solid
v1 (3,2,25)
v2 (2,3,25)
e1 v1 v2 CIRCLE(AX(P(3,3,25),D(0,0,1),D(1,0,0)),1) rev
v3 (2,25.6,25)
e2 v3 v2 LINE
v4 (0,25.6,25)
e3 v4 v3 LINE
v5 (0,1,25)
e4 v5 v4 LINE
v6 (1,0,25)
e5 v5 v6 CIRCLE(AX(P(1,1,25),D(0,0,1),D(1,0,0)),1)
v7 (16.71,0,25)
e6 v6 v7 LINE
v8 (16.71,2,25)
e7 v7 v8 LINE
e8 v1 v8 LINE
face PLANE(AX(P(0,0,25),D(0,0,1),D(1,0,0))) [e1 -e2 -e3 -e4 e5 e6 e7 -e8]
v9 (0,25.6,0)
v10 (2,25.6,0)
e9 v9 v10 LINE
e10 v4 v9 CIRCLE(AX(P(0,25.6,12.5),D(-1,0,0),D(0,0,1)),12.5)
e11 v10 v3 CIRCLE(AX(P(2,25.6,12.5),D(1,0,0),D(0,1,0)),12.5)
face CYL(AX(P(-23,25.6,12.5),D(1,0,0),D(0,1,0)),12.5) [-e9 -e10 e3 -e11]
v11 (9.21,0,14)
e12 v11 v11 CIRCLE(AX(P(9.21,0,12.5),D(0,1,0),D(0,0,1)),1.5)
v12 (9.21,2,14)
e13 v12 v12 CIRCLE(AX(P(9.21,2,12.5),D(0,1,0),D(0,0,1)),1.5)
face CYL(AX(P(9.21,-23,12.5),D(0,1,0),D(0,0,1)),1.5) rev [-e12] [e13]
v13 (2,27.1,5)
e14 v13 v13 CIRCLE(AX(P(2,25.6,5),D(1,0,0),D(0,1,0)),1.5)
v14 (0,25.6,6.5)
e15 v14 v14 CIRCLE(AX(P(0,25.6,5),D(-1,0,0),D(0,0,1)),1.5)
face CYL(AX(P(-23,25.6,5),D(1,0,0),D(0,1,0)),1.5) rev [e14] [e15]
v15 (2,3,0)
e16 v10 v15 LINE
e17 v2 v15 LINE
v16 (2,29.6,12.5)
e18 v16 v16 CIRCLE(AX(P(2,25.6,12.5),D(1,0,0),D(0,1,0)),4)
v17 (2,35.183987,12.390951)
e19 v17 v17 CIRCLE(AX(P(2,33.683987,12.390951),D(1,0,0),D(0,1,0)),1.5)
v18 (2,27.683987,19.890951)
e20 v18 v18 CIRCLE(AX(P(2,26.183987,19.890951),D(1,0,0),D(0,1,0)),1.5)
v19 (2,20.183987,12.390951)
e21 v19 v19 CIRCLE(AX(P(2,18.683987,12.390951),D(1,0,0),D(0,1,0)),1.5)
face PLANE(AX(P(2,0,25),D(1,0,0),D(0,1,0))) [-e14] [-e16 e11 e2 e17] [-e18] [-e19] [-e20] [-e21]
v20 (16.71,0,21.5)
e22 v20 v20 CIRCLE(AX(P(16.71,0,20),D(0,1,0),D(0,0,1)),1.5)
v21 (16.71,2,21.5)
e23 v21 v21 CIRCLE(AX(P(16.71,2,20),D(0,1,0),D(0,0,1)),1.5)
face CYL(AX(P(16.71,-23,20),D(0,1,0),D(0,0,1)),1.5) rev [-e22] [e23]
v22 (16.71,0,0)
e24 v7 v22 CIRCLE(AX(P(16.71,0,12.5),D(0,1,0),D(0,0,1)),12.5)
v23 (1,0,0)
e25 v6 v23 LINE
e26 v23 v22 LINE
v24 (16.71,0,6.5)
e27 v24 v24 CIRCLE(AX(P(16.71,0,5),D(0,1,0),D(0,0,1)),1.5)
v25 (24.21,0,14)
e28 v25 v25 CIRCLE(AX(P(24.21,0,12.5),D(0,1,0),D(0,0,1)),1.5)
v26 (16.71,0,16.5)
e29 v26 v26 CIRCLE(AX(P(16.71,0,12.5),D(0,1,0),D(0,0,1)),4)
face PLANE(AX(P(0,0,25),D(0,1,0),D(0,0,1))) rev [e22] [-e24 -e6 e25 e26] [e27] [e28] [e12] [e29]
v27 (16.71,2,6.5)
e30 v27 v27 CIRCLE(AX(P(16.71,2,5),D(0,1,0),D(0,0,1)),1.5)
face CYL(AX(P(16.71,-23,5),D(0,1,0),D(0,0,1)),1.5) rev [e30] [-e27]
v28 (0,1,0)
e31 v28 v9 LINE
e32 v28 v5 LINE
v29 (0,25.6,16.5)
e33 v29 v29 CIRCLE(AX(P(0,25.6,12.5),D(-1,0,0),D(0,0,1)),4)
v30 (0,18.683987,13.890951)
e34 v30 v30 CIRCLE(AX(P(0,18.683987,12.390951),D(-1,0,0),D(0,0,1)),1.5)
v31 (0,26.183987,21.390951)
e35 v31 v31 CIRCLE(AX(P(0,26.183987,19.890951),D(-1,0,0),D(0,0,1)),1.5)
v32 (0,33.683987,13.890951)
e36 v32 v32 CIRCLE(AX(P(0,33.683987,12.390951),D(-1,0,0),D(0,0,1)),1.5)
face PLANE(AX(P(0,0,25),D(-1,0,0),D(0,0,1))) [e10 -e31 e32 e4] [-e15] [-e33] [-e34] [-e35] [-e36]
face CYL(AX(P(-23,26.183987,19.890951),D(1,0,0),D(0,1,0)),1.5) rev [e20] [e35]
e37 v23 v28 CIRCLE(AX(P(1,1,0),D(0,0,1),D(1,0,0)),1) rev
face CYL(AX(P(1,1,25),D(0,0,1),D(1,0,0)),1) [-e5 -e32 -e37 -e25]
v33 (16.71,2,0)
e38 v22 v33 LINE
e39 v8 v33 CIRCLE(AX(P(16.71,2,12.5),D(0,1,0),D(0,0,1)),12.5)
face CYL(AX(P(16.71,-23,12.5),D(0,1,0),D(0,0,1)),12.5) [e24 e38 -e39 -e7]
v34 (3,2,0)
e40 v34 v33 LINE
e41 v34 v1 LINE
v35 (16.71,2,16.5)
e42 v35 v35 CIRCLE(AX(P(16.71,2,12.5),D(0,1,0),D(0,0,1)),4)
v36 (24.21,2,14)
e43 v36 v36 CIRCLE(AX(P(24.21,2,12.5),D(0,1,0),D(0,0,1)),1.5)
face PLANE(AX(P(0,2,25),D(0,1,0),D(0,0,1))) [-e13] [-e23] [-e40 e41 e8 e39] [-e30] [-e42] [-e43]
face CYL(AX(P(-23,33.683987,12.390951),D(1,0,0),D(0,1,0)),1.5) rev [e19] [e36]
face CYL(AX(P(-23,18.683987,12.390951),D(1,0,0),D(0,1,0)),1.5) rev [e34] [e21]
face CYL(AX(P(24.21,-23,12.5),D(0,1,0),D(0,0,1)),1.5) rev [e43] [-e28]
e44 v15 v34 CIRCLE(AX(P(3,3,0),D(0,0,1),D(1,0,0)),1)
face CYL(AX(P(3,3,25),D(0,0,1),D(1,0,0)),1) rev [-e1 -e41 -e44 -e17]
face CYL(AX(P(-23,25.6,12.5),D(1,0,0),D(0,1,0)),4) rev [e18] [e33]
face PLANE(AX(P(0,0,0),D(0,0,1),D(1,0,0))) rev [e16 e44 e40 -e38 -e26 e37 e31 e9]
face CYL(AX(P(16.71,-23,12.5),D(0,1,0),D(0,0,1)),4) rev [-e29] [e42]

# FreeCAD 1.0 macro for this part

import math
import FreeCAD as App
import Part
import Sketcher
from FreeCAD import Vector


def edges_at(feature, points):
    """Names of the edges that pass closest to the given points."""
    edges = feature.Shape.Edges
    near = lambda p: min(range(len(edges)), key=lambda i: edges[i].distToShape(Part.Vertex(*p))[0])
    return sorted({f"Edge{near(p) + 1}" for p in points})

doc = App.newDocument("Part")
body = doc.addObject("PartDesign::Body", "Body")

sketch1 = doc.addObject("Sketcher::SketchObject", "Sketch")
body.addObject(sketch1)
sketch1.AttachmentSupport = (doc.XY_Plane, [""])
sketch1.MapMode = "FlatFace"
sketch1.addGeometry([
    Part.LineSegment(Vector(2, 38.1, 0), Vector(0, 38.1, 0)),
    Part.LineSegment(Vector(0, 38.1, 0), Vector(0, 0, 0)),
    Part.LineSegment(Vector(0, 0, 0), Vector(29.2, 0, 0)),
    Part.LineSegment(Vector(29.2, 0, 0), Vector(29.2, 2, 0)),
    Part.LineSegment(Vector(29.2, 2, 0), Vector(2, 2, 0)),
    Part.LineSegment(Vector(2, 2, 0), Vector(2, 38.1, 0)),
], False)
sketch1.addConstraint([
    Sketcher.Constraint("Coincident", 0, 2, 1, 1),
    Sketcher.Constraint("Coincident", 1, 2, 2, 1),
    Sketcher.Constraint("Coincident", 2, 2, 3, 1),
    Sketcher.Constraint("Coincident", 3, 2, 4, 1),
    Sketcher.Constraint("Coincident", 4, 2, 5, 1),
    Sketcher.Constraint("Coincident", 5, 2, 0, 1),
    Sketcher.Constraint("Horizontal", 0),
    Sketcher.Constraint("Vertical", 1),
    Sketcher.Constraint("Horizontal", 2),
    Sketcher.Constraint("Vertical", 3),
    Sketcher.Constraint("Horizontal", 4),
    Sketcher.Constraint("Vertical", 5),
    Sketcher.Constraint("Coincident", 1, 2, -1, 1),
    Sketcher.Constraint("Equal", 0, 3),
    Sketcher.Constraint("DistanceX", 0, 2, 0, 1, 2.0),
    Sketcher.Constraint("DistanceY", 1, 2, 1, 1, 38.1),
    Sketcher.Constraint("DistanceX", 2, 1, 2, 2, 29.21),
])
pad1 = doc.addObject("PartDesign::Pad", "Pad")
body.addObject(pad1)
pad1.Profile = sketch1
pad1.Length = 25

sketch2 = doc.addObject("Sketcher::SketchObject", "Sketch001")
body.addObject(sketch2)
sketch2.AttachmentSupport = (doc.XZ_Plane, [""])
sketch2.MapMode = "FlatFace"
sketch2.AttachmentOffset = App.Placement(Vector(0, 0, -2), App.Rotation())
sketch2.addGeometry([
    Part.Circle(Vector(16.7, 20, 0), Vector(0, 0, 1), 1.5),
    Part.Circle(Vector(9.2, 12.5, 0), Vector(0, 0, 1), 1.5),
    Part.Circle(Vector(16.7, 5, 0), Vector(0, 0, 1), 1.5),
    Part.Circle(Vector(24.2, 12.5, 0), Vector(0, 0, 1), 1.5),
    Part.Circle(Vector(16.7, 12.5, 0), Vector(0, 0, 1), 4),
    Part.LineSegment(Vector(29.2, 12.5, 0), Vector(29.2, 0, 0)),
    Part.LineSegment(Vector(29.2, 0, 0), Vector(16.7, 0, 0)),
    Part.ArcOfCircle(Part.Circle(Vector(16.7, 12.5, 0), Vector(0, 0, 1), 12.5), math.radians(-90), math.radians(0)),
    Part.LineSegment(Vector(29.2, 25, 0), Vector(29.2, 12.5, 0)),
    Part.ArcOfCircle(Part.Circle(Vector(16.7, 12.5, 0), Vector(0, 0, 1), 12.5), math.radians(0), math.radians(90)),
    Part.LineSegment(Vector(16.7, 25, 0), Vector(29.2, 25, 0)),
], False)
sketch2.addConstraint([
    Sketcher.Constraint("Coincident", 5, 2, 6, 1),
    Sketcher.Constraint("Tangent", 6, 2, 7, 1),
    Sketcher.Constraint("Tangent", 7, 2, 5, 1),
    Sketcher.Constraint("Tangent", 8, 2, 9, 1),
    Sketcher.Constraint("Tangent", 9, 2, 10, 1),
    Sketcher.Constraint("Coincident", 10, 2, 8, 1),
    Sketcher.Constraint("Vertical", 5),
    Sketcher.Constraint("Horizontal", 6),
    Sketcher.Constraint("Vertical", 8),
    Sketcher.Constraint("Horizontal", 10),
    Sketcher.Constraint("Coincident", 7, 3, 4, 3),
    Sketcher.Constraint("Coincident", 9, 3, 4, 3),
    Sketcher.Constraint("Equal", 0, 1),
    Sketcher.Constraint("Equal", 1, 2),
    Sketcher.Constraint("Equal", 2, 3),
    Sketcher.Constraint("Equal", 7, 9),
    Sketcher.Constraint("PointOnObject", 5, 2, -1),
    Sketcher.Constraint("Horizontal", 1, 3, 3, 3),
    Sketcher.Constraint("Horizontal", 3, 3, 4, 3),
    Sketcher.Constraint("Vertical", 0, 3, 2, 3),
    Sketcher.Constraint("Vertical", 2, 3, 4, 3),
    Sketcher.Constraint("Diameter", 0, 3.0),
    Sketcher.Constraint("Diameter", 4, 8.0),
    Sketcher.Constraint("Radius", 7, 12.5),
    Sketcher.Constraint("DistanceY", -1, 1, 0, 3, 20.0),
    Sketcher.Constraint("DistanceY", -1, 1, 2, 3, 5.0),
    Sketcher.Constraint("DistanceX", 1, 3, 3, 3, 15.0),
    Sketcher.Constraint("DistanceX", 3, 3, 5, 2, 5.0),
    Sketcher.Constraint("DistanceX", -1, 1, 0, 3, 16.71),
])
pocket1 = doc.addObject("PartDesign::Pocket", "Pocket")
body.addObject(pocket1)
pocket1.Profile = sketch2
pocket1.Length = 25
pocket1.Reversed = True

sketch3 = doc.addObject("Sketcher::SketchObject", "Sketch002")
body.addObject(sketch3)
sketch3.AttachmentSupport = (doc.YZ_Plane, [""])
sketch3.MapMode = "FlatFace"
sketch3.AttachmentOffset = App.Placement(Vector(0, 0, 2), App.Rotation())
sketch3.addGeometry([
    Part.ArcOfCircle(Part.Circle(Vector(25.6, 12.5, 0), Vector(0, 0, 1), 12.5), math.radians(0), math.radians(90)),
    Part.LineSegment(Vector(38.1, 12.5, 0), Vector(38.1, 25, 0)),
    Part.LineSegment(Vector(38.1, 25, 0), Vector(25.6, 25, 0)),
    Part.LineSegment(Vector(25.6, 0, 0), Vector(38.1, 0, 0)),
    Part.LineSegment(Vector(38.1, 0, 0), Vector(38.1, 12.5, 0)),
    Part.ArcOfCircle(Part.Circle(Vector(25.6, 12.5, 0), Vector(0, 0, 1), 12.5), math.radians(-90), math.radians(0)),
    Part.Circle(Vector(33.7, 12.4, 0), Vector(0, 0, 1), 1.5),
    Part.Circle(Vector(25.6, 5, 0), Vector(0, 0, 1), 1.5),
    Part.Circle(Vector(26.2, 19.9, 0), Vector(0, 0, 1), 1.5),
    Part.Circle(Vector(25.6, 12.5, 0), Vector(0, 0, 1), 4),
    Part.Circle(Vector(18.7, 12.4, 0), Vector(0, 0, 1), 1.5),
], False)
sketch3.addConstraint([
    Sketcher.Constraint("Tangent", 0, 1, 1, 1),
    Sketcher.Constraint("Coincident", 1, 2, 2, 1),
    Sketcher.Constraint("Tangent", 2, 2, 0, 2),
    Sketcher.Constraint("Coincident", 3, 2, 4, 1),
    Sketcher.Constraint("Tangent", 4, 2, 5, 2),
    Sketcher.Constraint("Tangent", 5, 1, 3, 1),
    Sketcher.Constraint("Vertical", 1),
    Sketcher.Constraint("Horizontal", 2),
    Sketcher.Constraint("Horizontal", 3),
    Sketcher.Constraint("Vertical", 4),
    Sketcher.Constraint("Coincident", 5, 3, 0, 3),
    Sketcher.Constraint("Coincident", 9, 3, 0, 3),
    Sketcher.Constraint("Equal", 0, 5),
    Sketcher.Constraint("Equal", 6, 7),
    Sketcher.Constraint("Equal", 7, 8),
    Sketcher.Constraint("Equal", 8, 10),
    Sketcher.Constraint("PointOnObject", 3, 2, -1),
    Sketcher.Constraint("Horizontal", 6, 3, 10, 3),
    Sketcher.Constraint("Vertical", 5, 3, 7, 3),
    Sketcher.Constraint("Diameter", 6, 3.0),
    Sketcher.Constraint("Diameter", 9, 8.0),
    Sketcher.Constraint("Radius", 0, 12.5),
    Sketcher.Constraint("DistanceY", -1, 1, 7, 3, 5.0),
    Sketcher.Constraint("DistanceX", -1, 1, 0, 3, 25.6),
    Sketcher.Constraint("DistanceX", 8, 3, 6, 3, 7.5),
    Sketcher.Constraint("DistanceY", 6, 3, 8, 3, 7.5),
    Sketcher.Constraint("DistanceX", 10, 3, 8, 3, 7.5),
    Sketcher.Constraint("DistanceY", -1, 1, 6, 3, 12.390951),
    Sketcher.Constraint("DistanceX", -1, 1, 6, 3, 33.683987),
])
pocket2 = doc.addObject("PartDesign::Pocket", "Pocket001")
body.addObject(pocket2)
pocket2.Profile = sketch3
pocket2.Length = 25
doc.recompute()

fillet = doc.addObject("PartDesign::Fillet", "Fillet")
body.addObject(fillet)
fillet.Base = (pocket2, edges_at(pocket2, [(2, 2, 12.5), (0, 0, 12.5)]))
fillet.Radius = 1

doc.recompute()
